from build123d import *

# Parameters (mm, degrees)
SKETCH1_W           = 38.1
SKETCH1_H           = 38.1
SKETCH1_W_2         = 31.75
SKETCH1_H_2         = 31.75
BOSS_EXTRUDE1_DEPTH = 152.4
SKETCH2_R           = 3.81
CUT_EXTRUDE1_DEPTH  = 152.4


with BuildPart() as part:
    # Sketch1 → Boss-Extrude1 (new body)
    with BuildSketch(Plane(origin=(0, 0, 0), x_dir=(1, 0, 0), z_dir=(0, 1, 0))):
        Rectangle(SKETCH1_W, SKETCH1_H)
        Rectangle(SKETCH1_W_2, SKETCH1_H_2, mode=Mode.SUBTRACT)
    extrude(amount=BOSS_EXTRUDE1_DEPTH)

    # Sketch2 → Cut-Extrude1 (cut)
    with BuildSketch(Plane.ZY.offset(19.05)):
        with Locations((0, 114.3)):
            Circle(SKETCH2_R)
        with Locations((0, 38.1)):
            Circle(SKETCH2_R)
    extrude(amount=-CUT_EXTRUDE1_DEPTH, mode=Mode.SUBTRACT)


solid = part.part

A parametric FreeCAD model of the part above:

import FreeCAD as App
import Part
import Sketcher

V = App.Vector
Q = App.Units.Quantity

doc = App.newDocument("Part")
body = doc.addObject("PartDesign::Body", "Body")

# Sketch on XZ plane
sketch1 = body.newObject("Sketcher::SketchObject", "Sketch")
sketch1.AttachmentSupport = (doc.getObject("XZ_Plane"), [""])
sketch1.MapMode = "FlatFace"
sketch1.addGeometry([
    Part.LineSegment(V(-19, -19, 0), V(-19, 19, 0)),  # 0
    Part.LineSegment(V(-19, 19, 0), V(19, 19, 0)),  # 1
    Part.LineSegment(V(19, 19, 0), V(19, -19, 0)),  # 2
    Part.LineSegment(V(19, -19, 0), V(-19, -19, 0)),  # 3
    Part.LineSegment(V(16, 16, 0), V(-16, 16, 0)),  # 4
    Part.LineSegment(V(-16, 16, 0), V(-16, -16, 0)),  # 5
    Part.LineSegment(V(-16, -16, 0), V(16, -16, 0)),  # 6
    Part.LineSegment(V(16, -16, 0), V(16, 16, 0)),  # 7
], False)
sketch1.addConstraint([
    Sketcher.Constraint("Coincident", 0, 2, 1, 1),
    Sketcher.Constraint("Coincident", 1, 2, 2, 1),
    Sketcher.Constraint("Coincident", 2, 2, 3, 1),
    Sketcher.Constraint("Coincident", 3, 2, 0, 1),
    Sketcher.Constraint("Coincident", 4, 2, 5, 1),
    Sketcher.Constraint("Coincident", 5, 2, 6, 1),
    Sketcher.Constraint("Coincident", 6, 2, 7, 1),
    Sketcher.Constraint("Coincident", 7, 2, 4, 1),
    Sketcher.Constraint("Vertical", 0),
    Sketcher.Constraint("Horizontal", 1),
    Sketcher.Constraint("Vertical", 2),
    Sketcher.Constraint("Horizontal", 3),
    Sketcher.Constraint("Horizontal", 4),
    Sketcher.Constraint("Vertical", 5),
    Sketcher.Constraint("Horizontal", 6),
    Sketcher.Constraint("Vertical", 7),
    Sketcher.Constraint("Symmetric", 0, 2, 2, 2, -1, 1),
    Sketcher.Constraint("Symmetric", 4, 2, 6, 2, -1, 1),
    Sketcher.Constraint("Equal", 3, 0),
    Sketcher.Constraint("Equal", 6, 5),
    Sketcher.Constraint("DistanceX", 1, 1, 1, 2, Q("1.5 in")),
    Sketcher.Constraint("DistanceX", 4, 2, 4, 1, Q("1.25 in")),
])
pad1 = body.newObject("PartDesign::Pad", "Pad")
pad1.Profile = sketch1
pad1.Length = Q("6 in")
pad1.Reversed = True

# Sketch on YZ plane
sketch2 = body.newObject("Sketcher::SketchObject", "Sketch001")
sketch2.AttachmentSupport = (doc.getObject("YZ_Plane"), [""])
sketch2.MapMode = "FlatFace"
sketch2.AttachmentOffset = App.Placement(V(0, 0, -0.75 * 25.4), App.Rotation())
sketch2.addGeometry([
    Part.Circle(V(114.3, 0, 0), V(0, 0, 1), 3.8),
    Part.Circle(V(38.1, 0, 0), V(0, 0, 1), 3.8),
], False)
sketch2.addConstraint([
    Sketcher.Constraint("Equal", 0, 1),
    Sketcher.Constraint("PointOnObject", 0, 3, -1),
    Sketcher.Constraint("PointOnObject", 1, 3, -1),
    Sketcher.Constraint("Diameter", 0, Q("0.3 in")),
    Sketcher.Constraint("DistanceX", 1, 3, 0, 3, Q("3 in")),
    Sketcher.Constraint("DistanceX", -1, 1, 0, 3, Q("4.5 in")),
])
pocket1 = body.newObject("PartDesign::Pocket", "Pocket")
pocket1.Profile = sketch2
pocket1.Length = Q("6 in")
pocket1.Reversed = True

doc.recompute()
